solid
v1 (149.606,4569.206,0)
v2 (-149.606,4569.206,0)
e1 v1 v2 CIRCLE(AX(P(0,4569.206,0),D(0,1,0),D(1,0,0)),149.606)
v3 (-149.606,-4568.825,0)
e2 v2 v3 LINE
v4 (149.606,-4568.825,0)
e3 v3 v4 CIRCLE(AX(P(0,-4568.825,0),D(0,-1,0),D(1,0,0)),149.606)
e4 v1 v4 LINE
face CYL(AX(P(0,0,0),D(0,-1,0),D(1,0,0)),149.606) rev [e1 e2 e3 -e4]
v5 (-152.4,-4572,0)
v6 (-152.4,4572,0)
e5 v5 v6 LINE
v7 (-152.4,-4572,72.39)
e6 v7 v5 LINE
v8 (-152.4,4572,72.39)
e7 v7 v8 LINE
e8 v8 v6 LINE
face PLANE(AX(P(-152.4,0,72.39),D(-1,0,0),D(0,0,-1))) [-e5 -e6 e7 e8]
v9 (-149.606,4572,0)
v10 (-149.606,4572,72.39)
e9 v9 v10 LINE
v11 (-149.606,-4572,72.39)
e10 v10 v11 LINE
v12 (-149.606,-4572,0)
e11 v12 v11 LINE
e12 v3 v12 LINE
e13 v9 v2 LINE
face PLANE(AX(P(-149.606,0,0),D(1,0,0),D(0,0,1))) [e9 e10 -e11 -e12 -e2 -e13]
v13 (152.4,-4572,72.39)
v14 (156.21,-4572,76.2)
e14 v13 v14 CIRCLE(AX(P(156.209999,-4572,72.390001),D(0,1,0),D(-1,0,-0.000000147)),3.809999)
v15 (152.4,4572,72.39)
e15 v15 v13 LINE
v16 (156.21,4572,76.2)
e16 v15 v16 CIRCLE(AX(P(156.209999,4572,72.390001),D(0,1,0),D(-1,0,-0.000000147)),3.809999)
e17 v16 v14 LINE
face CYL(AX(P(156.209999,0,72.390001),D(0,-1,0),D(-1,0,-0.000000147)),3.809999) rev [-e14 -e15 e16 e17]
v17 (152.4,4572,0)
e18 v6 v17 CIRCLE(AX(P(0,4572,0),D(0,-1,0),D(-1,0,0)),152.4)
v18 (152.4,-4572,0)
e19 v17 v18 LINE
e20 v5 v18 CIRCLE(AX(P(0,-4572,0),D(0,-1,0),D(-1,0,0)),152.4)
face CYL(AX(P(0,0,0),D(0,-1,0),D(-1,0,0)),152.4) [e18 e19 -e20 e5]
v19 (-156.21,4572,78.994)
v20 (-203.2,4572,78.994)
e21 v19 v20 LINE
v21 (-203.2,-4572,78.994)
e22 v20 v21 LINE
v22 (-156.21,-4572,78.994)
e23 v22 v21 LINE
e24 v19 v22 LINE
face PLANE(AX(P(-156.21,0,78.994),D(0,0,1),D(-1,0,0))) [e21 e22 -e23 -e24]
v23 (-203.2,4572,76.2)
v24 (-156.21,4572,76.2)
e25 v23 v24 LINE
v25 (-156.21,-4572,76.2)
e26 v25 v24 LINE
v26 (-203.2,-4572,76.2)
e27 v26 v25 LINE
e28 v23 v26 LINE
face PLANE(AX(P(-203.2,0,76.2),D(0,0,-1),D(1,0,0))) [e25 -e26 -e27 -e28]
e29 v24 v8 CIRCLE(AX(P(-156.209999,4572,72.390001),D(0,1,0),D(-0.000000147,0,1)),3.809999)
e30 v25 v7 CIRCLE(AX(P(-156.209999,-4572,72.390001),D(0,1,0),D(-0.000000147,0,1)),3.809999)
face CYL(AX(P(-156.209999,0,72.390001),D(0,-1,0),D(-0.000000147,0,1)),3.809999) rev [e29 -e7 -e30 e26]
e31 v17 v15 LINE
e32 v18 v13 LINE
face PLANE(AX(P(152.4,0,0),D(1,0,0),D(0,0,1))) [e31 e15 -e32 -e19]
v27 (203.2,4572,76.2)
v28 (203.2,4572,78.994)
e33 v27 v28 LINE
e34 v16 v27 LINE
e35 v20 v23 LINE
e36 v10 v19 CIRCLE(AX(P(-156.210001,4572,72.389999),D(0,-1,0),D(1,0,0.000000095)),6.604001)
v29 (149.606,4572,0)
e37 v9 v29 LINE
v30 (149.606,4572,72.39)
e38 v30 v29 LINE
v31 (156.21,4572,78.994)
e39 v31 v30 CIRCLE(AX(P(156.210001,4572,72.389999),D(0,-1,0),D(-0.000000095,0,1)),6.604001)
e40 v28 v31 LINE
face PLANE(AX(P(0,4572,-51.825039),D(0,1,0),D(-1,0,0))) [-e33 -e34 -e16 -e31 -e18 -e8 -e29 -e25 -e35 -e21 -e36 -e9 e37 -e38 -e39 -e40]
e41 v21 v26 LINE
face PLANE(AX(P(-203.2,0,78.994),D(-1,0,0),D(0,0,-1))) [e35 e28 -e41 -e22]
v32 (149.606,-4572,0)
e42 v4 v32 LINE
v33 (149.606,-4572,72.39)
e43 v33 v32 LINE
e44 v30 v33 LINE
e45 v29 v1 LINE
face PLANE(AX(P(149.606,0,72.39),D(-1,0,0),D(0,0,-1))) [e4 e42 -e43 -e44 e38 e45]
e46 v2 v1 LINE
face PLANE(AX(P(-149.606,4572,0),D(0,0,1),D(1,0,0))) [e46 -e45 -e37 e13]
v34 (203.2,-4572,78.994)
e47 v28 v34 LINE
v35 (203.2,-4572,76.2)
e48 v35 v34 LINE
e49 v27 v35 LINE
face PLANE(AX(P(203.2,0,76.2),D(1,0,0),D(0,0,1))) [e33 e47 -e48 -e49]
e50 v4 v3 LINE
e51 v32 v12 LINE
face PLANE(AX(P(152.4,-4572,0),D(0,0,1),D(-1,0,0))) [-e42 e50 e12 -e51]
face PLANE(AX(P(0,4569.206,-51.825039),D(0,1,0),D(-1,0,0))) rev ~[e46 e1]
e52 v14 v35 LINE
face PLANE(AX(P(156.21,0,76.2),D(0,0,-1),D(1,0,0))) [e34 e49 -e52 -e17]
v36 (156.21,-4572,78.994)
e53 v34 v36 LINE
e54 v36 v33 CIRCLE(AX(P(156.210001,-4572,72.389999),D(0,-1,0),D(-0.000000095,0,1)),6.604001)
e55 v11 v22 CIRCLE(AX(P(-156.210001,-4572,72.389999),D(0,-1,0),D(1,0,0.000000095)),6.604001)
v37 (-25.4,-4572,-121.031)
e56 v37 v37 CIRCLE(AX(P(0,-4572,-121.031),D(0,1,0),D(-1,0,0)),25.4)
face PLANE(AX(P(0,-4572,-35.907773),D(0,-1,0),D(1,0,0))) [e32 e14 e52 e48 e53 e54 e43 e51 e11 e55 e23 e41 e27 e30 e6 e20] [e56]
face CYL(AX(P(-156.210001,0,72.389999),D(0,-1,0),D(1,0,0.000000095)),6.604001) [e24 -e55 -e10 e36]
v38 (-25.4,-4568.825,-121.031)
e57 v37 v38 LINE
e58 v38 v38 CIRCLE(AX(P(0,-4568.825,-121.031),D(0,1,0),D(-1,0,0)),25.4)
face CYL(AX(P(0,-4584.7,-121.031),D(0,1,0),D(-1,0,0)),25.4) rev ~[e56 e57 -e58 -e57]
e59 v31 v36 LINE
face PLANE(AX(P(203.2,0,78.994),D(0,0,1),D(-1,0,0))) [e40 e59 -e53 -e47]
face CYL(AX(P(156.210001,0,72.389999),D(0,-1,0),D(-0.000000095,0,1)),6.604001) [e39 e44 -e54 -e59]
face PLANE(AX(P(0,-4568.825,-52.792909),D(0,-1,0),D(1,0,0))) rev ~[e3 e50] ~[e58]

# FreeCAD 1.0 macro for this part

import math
import FreeCAD as App
import Part
import Sketcher

V = App.Vector
Q = App.Units.Quantity

doc = App.newDocument("Part")
params = doc.addObject("Spreadsheet::Sheet", "Params")
for row, (alias, value) in enumerate([
    ("sketch1_radius", "6 in"),
    ("sketch1_radius2", "0.15 in"),
    ("sketch1_radius3", "0.26 in"),
    ("pad1_length", "360 in"),
    ("sketch2_radius", "6 in"),
    ("pad2_length", "0.125 in"),
    ("sketch3_radius", "5.89 in"),
    ("pad3_length", "0.11 in"),
    ("sketch4_diameter", "2 in"),
    ("hole_diameter", "2 in"),
    ("hole_depth", "0.5 in"),
], start=1):
    params.set(f"A{row}", alias)
    params.set(f"B{row}", "=" + value)
    params.setAlias(f"B{row}", alias)

body = doc.addObject("PartDesign::Body", "Body")

# Sketch on XZ plane
sketch1 = body.newObject("Sketcher::SketchObject", "Sketch")
sketch1.AttachmentSupport = (doc.getObject("XZ_Plane"), [""])
sketch1.MapMode = "FlatFace"
sketch1.addGeometry([
    Part.ArcOfCircle(Part.Circle(V(0, 0, 0), V(0, 0, 1), 152.4), math.radians(180), math.radians(360)),  # 0
    Part.LineSegment(V(152.4, 0, 0), V(152.4, 72.39, 0)),  # 1
    Part.ArcOfCircle(Part.Circle(V(156.209999, 72.390001, 0), V(0, 0, 1), 3.809999), math.radians(89.999992), math.radians(180.000008)),  # 2
    Part.LineSegment(V(156.21, 76.2, 0), V(203.2, 76.2, 0)),  # 3
    Part.LineSegment(V(203.2, 76.2, 0), V(203.2, 78.994, 0)),  # 4
    Part.LineSegment(V(203.2, 78.994, 0), V(156.21, 78.994, 0)),  # 5
    Part.ArcOfCircle(Part.Circle(V(156.210001, 72.389999, 0), V(0, 0, 1), 6.604001), math.radians(90.000005), math.radians(179.999995)),  # 6
    Part.LineSegment(V(149.606, 72.39, 0), V(149.606, 0, 0)),  # 7
    Part.ArcOfCircle(Part.Circle(V(0, 0, 0), V(0, 0, 1), 149.606), math.radians(180), math.radians(360)),  # 8
    Part.LineSegment(V(-149.606, 0, 0), V(-149.606, 72.39, 0)),  # 9
    Part.ArcOfCircle(Part.Circle(V(-156.210001, 72.389999, 0), V(0, 0, 1), 6.604001), math.radians(0.000005), math.radians(89.999995)),  # 10
    Part.LineSegment(V(-156.21, 78.994, 0), V(-203.2, 78.994, 0)),  # 11
    Part.LineSegment(V(-203.2, 78.994, 0), V(-203.2, 76.2, 0)),  # 12
    Part.LineSegment(V(-203.2, 76.2, 0), V(-156.21, 76.2, 0)),  # 13
    Part.ArcOfCircle(Part.Circle(V(-156.209999, 72.390001, 0), V(0, 0, 1), 3.809999), math.radians(-0.000008), math.radians(90.000008)),  # 14
    Part.LineSegment(V(-152.4, 72.39, 0), V(-152.4, 0, 0)),  # 15
], False)
sketch1.addConstraint([
    Sketcher.Constraint("Tangent", 0, 2, 1, 1),
    Sketcher.Constraint("Tangent", 1, 2, 2, 2),
    Sketcher.Constraint("Tangent", 2, 1, 3, 1),
    Sketcher.Constraint("Coincident", 3, 2, 4, 1),
    Sketcher.Constraint("Coincident", 4, 2, 5, 1),
    Sketcher.Constraint("Tangent", 5, 2, 6, 1),
    Sketcher.Constraint("Tangent", 6, 2, 7, 1),
    Sketcher.Constraint("Tangent", 7, 2, 8, 2),
    Sketcher.Constraint("Tangent", 8, 1, 9, 1),
    Sketcher.Constraint("Tangent", 9, 2, 10, 1),
    Sketcher.Constraint("Tangent", 10, 2, 11, 1),
    Sketcher.Constraint("Coincident", 11, 2, 12, 1),
    Sketcher.Constraint("Coincident", 12, 2, 13, 1),
    Sketcher.Constraint("Tangent", 13, 2, 14, 2),
    Sketcher.Constraint("Tangent", 14, 1, 15, 1),
    Sketcher.Constraint("Tangent", 15, 2, 0, 1),
    Sketcher.Constraint("Vertical", 1),
    Sketcher.Constraint("Horizontal", 3),
    Sketcher.Constraint("Vertical", 4),
    Sketcher.Constraint("Horizontal", 5),
    Sketcher.Constraint("Vertical", 7),
    Sketcher.Constraint("Vertical", 9),
    Sketcher.Constraint("Horizontal", 11),
    Sketcher.Constraint("Vertical", 12),
    Sketcher.Constraint("Horizontal", 13),
    Sketcher.Constraint("Vertical", 15),
    Sketcher.Constraint("Coincident", 0, 3, -1, 1),
    Sketcher.Constraint("Coincident", 8, 3, -1, 1),
    Sketcher.Constraint("Coincident", 6, 3, 2, 3),
    Sketcher.Constraint("Coincident", 14, 3, 10, 3),
    Sketcher.Constraint("Equal", 6, 10),
    Sketcher.Constraint("Symmetric", 4, 2, 11, 2, -2),
    Sketcher.Constraint("Radius", 0, Q("6 in")),
    Sketcher.Constraint("Radius", 2, Q("0.15 in")),
    Sketcher.Constraint("Radius", 6, Q("0.26 in")),
    Sketcher.Constraint("DistanceY", -1, 1, 2, 1, Q("3 in")),
    Sketcher.Constraint("DistanceX", -1, 1, 3, 2, Q("8 in")),
])
sketch1.setExpression("Constraints[32]", "Params.sketch1_radius")
sketch1.setExpression("Constraints[33]", "Params.sketch1_radius2")
sketch1.setExpression("Constraints[34]", "Params.sketch1_radius3")
pad1 = body.newObject("PartDesign::Pad", "Pad")
pad1.Profile = sketch1
pad1.setExpression("Length", "Params.pad1_length")
pad1.Midplane = True

# Sketch on XZ plane
sketch2 = body.newObject("Sketcher::SketchObject", "Sketch001")
sketch2.AttachmentSupport = (doc.getObject("XZ_Plane"), [""])
sketch2.MapMode = "FlatFace"
sketch2.AttachmentOffset = App.Placement(V(0, 0, 180 * 25.4), App.Rotation())
sketch2.addGeometry([
    Part.LineSegment(V(152.4, 0, 0), V(-152.4, 0, 0)),
    Part.ArcOfCircle(Part.Circle(V(0, 0, 0), V(0, 0, 1), 152.4), math.radians(180), math.radians(360)),
], False)
sketch2.addConstraint([
    Sketcher.Constraint("Coincident", 0, 1, 1, 2),
    Sketcher.Constraint("Coincident", 1, 1, 0, 2),
    Sketcher.Constraint("Horizontal", 0),
    Sketcher.Constraint("Coincident", 1, 3, -1, 1),
    Sketcher.Constraint("PointOnObject", 0, 1, -1),
    Sketcher.Constraint("Radius", 1, Q("6 in")),
])
sketch2.setExpression("Constraints[5]", "Params.sketch2_radius")
pad2 = body.newObject("PartDesign::Pad", "Pad001")
pad2.Profile = sketch2
pad2.setExpression("Length", "Params.pad2_length")
pad2.Reversed = True

# Sketch on XZ plane
sketch3 = body.newObject("Sketcher::SketchObject", "Sketch002")
sketch3.AttachmentSupport = (doc.getObject("XZ_Plane"), [""])
sketch3.MapMode = "FlatFace"
sketch3.AttachmentOffset = App.Placement(V(0, 0, -180 * 25.4), App.Rotation())
sketch3.addGeometry([
    Part.ArcOfCircle(Part.Circle(V(0, 0, 0), V(0, 0, 1), 149.606), math.radians(180), math.radians(360)),
    Part.LineSegment(V(-149.606, 0, 0), V(149.606, 0, 0)),
], False)
sketch3.addConstraint([
    Sketcher.Constraint("Coincident", 0, 1, 1, 1),
    Sketcher.Constraint("Coincident", 1, 2, 0, 2),
    Sketcher.Constraint("Horizontal", 1),
    Sketcher.Constraint("Coincident", 0, 3, -1, 1),
    Sketcher.Constraint("PointOnObject", 0, 1, -1),
    Sketcher.Constraint("Radius", 0, Q("5.89 in")),
])
sketch3.setExpression("Constraints[5]", "Params.sketch3_radius")
pad3 = body.newObject("PartDesign::Pad", "Pad002")
pad3.Profile = sketch3
pad3.setExpression("Length", "Params.pad3_length")

# Sketch on XZ plane
sketch4 = body.newObject("Sketcher::SketchObject", "Sketch003")
sketch4.AttachmentSupport = (doc.getObject("XZ_Plane"), [""])
sketch4.MapMode = "FlatFace"
sketch4.AttachmentOffset = App.Placement(V(0, 0, 180 * 25.4), App.Rotation())
sketch4.addGeometry(Part.Circle(V(0, -121.031, 0), V(0, 0, 1), 25.4), False)
sketch4.addConstraint([
    Sketcher.Constraint("PointOnObject", 0, 3, -2),
    Sketcher.Constraint("Diameter", 0, Q("2 in")),
    Sketcher.Constraint("DistanceY", 0, 3, -1, 1, Q("4.765 in")),
])
sketch4.setExpression("Constraints[1]", "Params.sketch4_diameter")
doc.recompute()
hole = body.newObject("PartDesign::Hole", "Hole")
hole.Profile = sketch4
hole.ThreadType = "None"
hole.setExpression("Diameter", "Params.hole_diameter")
hole.DepthType = "Dimension"
hole.setExpression("Depth", "Params.hole_depth")
hole.DrillPoint = "Flat"

doc.recompute()
